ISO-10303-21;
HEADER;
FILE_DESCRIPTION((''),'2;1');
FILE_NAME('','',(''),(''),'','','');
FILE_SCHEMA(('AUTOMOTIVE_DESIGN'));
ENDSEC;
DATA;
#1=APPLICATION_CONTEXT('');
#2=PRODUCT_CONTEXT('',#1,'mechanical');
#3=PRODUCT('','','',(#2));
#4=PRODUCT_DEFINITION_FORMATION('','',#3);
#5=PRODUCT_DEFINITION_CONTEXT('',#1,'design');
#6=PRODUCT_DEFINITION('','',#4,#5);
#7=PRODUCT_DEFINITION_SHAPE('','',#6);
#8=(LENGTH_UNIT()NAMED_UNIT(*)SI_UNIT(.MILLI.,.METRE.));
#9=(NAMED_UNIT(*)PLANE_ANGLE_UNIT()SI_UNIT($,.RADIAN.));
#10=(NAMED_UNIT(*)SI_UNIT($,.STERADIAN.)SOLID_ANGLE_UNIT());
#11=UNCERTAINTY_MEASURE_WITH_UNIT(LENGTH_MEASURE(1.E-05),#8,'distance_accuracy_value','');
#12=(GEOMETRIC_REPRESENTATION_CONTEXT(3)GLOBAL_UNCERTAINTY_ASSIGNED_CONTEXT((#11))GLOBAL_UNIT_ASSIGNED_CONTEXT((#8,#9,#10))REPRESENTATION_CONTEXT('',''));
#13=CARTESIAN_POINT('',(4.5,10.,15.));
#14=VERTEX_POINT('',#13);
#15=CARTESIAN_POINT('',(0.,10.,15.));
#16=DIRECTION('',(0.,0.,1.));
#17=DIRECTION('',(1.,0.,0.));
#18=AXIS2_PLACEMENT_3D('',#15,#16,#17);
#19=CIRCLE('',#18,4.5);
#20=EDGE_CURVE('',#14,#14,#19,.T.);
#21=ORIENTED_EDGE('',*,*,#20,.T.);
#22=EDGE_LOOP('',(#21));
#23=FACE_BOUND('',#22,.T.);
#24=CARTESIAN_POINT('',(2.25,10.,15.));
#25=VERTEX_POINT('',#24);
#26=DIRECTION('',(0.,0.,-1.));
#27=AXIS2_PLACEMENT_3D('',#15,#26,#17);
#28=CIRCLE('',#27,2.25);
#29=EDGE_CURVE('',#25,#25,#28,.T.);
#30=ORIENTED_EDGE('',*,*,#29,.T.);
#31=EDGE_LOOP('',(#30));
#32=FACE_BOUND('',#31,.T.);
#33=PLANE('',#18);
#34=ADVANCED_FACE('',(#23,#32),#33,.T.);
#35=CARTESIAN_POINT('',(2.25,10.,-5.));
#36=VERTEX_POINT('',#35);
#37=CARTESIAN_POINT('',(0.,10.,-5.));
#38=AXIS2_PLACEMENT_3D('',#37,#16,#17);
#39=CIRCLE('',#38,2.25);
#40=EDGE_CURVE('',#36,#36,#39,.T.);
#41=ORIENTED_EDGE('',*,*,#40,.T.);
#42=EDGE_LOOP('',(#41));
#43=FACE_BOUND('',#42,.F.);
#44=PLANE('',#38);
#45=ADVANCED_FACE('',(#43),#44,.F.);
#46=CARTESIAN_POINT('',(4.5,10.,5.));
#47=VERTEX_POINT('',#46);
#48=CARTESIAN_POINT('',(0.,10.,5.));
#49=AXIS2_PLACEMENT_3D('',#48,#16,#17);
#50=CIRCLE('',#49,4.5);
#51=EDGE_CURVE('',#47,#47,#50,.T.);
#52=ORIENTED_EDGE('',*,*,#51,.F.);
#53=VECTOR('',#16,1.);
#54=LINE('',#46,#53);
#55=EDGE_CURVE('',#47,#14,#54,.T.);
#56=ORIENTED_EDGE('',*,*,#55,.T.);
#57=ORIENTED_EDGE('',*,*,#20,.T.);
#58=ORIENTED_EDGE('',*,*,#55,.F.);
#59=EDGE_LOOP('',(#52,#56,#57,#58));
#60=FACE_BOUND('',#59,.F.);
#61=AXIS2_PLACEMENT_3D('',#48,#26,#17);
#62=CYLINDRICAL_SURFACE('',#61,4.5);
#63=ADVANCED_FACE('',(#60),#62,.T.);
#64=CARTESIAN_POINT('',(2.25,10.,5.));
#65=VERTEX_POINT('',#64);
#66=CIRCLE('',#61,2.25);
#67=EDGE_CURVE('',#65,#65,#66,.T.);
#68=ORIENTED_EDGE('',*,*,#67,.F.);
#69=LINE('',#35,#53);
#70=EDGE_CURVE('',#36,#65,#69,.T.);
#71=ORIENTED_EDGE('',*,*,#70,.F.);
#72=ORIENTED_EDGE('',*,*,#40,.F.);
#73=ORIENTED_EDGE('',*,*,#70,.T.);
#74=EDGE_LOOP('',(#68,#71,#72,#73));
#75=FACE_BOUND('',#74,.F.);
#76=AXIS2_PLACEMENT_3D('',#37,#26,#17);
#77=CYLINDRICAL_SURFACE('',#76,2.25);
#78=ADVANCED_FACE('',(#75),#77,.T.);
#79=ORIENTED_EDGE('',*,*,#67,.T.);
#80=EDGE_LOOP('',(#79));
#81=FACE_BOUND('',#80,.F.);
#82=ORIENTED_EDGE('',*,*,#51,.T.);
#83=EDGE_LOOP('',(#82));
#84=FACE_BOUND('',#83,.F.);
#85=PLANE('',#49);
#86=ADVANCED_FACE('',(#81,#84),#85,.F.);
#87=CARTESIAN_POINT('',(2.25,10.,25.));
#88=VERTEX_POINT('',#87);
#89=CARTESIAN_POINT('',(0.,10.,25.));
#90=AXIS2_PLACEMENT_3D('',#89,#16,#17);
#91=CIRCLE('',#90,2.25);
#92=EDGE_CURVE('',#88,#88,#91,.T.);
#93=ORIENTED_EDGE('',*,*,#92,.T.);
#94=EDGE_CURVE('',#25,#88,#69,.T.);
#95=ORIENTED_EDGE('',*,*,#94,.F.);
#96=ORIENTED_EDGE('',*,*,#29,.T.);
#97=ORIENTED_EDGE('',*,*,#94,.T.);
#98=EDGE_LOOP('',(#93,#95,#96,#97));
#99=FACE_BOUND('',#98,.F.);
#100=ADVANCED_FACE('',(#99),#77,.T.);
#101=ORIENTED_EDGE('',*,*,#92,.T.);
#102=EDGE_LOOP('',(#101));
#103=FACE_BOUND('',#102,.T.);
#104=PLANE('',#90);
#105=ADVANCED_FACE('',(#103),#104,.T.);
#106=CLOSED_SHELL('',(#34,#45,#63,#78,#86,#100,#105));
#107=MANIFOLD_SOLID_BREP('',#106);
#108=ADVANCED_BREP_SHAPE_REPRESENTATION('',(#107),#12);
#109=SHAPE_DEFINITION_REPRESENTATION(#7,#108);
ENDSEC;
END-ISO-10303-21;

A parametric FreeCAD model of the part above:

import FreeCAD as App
import Part
import Sketcher

V = App.Vector
Q = App.Units.Quantity

doc = App.newDocument("Part")
params = doc.addObject("Spreadsheet::Sheet", "Params")
for row, (alias, value) in enumerate([
    ("sketch1_diameter", "9 mm"),
    ("pad1_length", "10 mm"),
    ("sketch2_diameter", "4.5 mm"),
    ("pad2_length", "30 mm"),
], start=1):
    params.set(f"A{row}", alias)
    params.set(f"B{row}", "=" + value)
    params.setAlias(f"B{row}", alias)

body = doc.addObject("PartDesign::Body", "Body")

# Sketch on XY plane
sketch1 = body.newObject("Sketcher::SketchObject", "Sketch")
sketch1.AttachmentSupport = (doc.getObject("XY_Plane"), [""])
sketch1.MapMode = "FlatFace"
sketch1.AttachmentOffset = App.Placement(V(0, 0, 5), App.Rotation())
sketch1.addGeometry(Part.Circle(V(0, 10, 0), V(0, 0, 1), 4.5), False)
sketch1.addConstraint(Sketcher.Constraint("PointOnObject", 0, 3, -2))
sketch1.addConstraint(Sketcher.Constraint("Diameter", 0, Q("9 mm")))
sketch1.addConstraint(Sketcher.Constraint("DistanceY", -1, 1, 0, 3, Q("10 mm")))
sketch1.setExpression("Constraints[1]", "Params.sketch1_diameter")
pad1 = body.newObject("PartDesign::Pad", "Pad")
pad1.Profile = sketch1
pad1.setExpression("Length", "Params.pad1_length")
body2 = doc.addObject("PartDesign::Body", "Body001")

# Sketch on XY plane
sketch2 = body2.newObject("Sketcher::SketchObject", "Sketch001")
sketch2.AttachmentSupport = (doc.getObject("XY_Plane001"), [""])
sketch2.MapMode = "FlatFace"
sketch2.AttachmentOffset = App.Placement(V(0, 0, -5), App.Rotation())
sketch2.addGeometry(Part.Circle(V(0, 10, 0), V(0, 0, 1), 2.2), False)
sketch2.addConstraint(Sketcher.Constraint("PointOnObject", 0, 3, -2))
sketch2.addConstraint(Sketcher.Constraint("Diameter", 0, Q("4.5 mm")))
sketch2.addConstraint(Sketcher.Constraint("DistanceY", -1, 1, 0, 3, Q("10 mm")))
sketch2.setExpression("Constraints[1]", "Params.sketch2_diameter")
pad2 = body2.newObject("PartDesign::Pad", "Pad001")
pad2.Profile = sketch2
pad2.setExpression("Length", "Params.pad2_length")
doc.recompute()

boolean = body2.newObject("PartDesign::Boolean", "Boolean")
boolean.Type = "Fuse"
boolean.addObjects([body])

doc.recompute()
